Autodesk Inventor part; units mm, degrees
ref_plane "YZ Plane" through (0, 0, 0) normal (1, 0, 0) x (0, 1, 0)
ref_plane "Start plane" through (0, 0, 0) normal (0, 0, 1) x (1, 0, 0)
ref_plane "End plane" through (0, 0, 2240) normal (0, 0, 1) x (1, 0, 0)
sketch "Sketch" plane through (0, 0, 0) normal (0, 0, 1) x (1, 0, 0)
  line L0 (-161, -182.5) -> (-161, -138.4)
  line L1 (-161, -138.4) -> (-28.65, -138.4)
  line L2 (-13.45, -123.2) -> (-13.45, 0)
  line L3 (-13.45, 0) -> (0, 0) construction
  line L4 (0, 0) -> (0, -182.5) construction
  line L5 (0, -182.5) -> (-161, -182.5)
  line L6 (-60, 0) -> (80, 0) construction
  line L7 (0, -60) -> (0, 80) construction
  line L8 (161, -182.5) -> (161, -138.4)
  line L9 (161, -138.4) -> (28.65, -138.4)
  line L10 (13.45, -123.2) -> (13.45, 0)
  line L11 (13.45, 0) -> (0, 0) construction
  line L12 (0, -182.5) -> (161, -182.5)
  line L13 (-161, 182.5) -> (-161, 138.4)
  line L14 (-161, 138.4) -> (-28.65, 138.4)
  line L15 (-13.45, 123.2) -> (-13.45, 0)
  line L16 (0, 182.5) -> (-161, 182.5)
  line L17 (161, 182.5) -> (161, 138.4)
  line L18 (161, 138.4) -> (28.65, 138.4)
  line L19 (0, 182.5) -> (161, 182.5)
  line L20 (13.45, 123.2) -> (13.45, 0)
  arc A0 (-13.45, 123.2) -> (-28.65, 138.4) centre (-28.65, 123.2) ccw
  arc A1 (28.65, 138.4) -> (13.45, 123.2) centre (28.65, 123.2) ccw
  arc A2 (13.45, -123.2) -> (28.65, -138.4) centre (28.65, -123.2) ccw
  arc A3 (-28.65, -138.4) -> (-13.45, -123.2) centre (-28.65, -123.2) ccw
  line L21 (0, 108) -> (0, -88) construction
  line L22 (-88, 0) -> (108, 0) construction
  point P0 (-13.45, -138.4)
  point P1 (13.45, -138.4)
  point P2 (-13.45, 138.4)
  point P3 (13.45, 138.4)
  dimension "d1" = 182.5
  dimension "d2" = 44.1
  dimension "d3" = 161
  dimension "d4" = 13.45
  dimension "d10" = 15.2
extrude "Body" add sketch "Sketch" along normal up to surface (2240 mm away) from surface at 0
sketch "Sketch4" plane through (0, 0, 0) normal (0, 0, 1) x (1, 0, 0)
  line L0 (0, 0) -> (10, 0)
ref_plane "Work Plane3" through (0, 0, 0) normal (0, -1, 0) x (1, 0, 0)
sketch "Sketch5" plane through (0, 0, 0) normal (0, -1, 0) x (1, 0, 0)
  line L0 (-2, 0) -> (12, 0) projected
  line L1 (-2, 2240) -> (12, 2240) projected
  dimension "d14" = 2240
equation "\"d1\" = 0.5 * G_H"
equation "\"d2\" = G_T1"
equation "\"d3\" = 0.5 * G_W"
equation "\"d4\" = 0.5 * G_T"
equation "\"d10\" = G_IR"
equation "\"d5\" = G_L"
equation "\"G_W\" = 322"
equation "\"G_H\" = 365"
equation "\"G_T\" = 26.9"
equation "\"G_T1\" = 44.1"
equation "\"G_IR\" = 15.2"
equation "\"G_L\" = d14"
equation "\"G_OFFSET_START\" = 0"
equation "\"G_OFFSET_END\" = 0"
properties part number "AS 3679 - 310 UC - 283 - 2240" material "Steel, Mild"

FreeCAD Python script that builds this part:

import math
import FreeCAD as App
import Part
import Sketcher
from FreeCAD import Vector

doc = App.newDocument("Part")
params = doc.addObject("Spreadsheet::Sheet", "Params")
for row, (alias, value) in enumerate([
    ("sketch1_radius", "15.2 mm"),
    ("sketch1_height", "44.1 mm"),
    ("pad1_length", "2240 mm"),
], start=1):
    params.set(f"A{row}", alias)
    params.set(f"B{row}", "=" + value)
    params.setAlias(f"B{row}", alias)

body = doc.addObject("PartDesign::Body", "Body")

# Sketch on XY plane
sketch1 = body.newObject("Sketcher::SketchObject", "Sketch")
sketch1.AttachmentSupport = (doc.getObject("XY_Plane"), [""])
sketch1.MapMode = "FlatFace"
sketch1.addGeometry(Part.LineSegment(Vector(-161, -138, 0), Vector(-161, -182, 0)), False)
sketch1.addGeometry(Part.LineSegment(Vector(-161, -182, 0), Vector(161, -182, 0)), False)
sketch1.addGeometry(Part.LineSegment(Vector(161, -182, 0), Vector(161, -138, 0)), False)
sketch1.addGeometry(Part.LineSegment(Vector(161, -138, 0), Vector(29, -138, 0)), False)
sketch1.addGeometry(Part.ArcOfCircle(Part.Circle(Vector(29, -123, 0), Vector(0, 0, 1), 15), math.radians(180), math.radians(270)), False)
sketch1.addGeometry(Part.LineSegment(Vector(13, -123, 0), Vector(13, 123, 0)), False)
sketch1.addGeometry(Part.ArcOfCircle(Part.Circle(Vector(29, 123, 0), Vector(0, 0, 1), 15), math.radians(90), math.radians(180)), False)
sketch1.addGeometry(Part.LineSegment(Vector(29, 138, 0), Vector(161, 138, 0)), False)
sketch1.addGeometry(Part.LineSegment(Vector(161, 138, 0), Vector(161, 182, 0)), False)
sketch1.addGeometry(Part.LineSegment(Vector(161, 182, 0), Vector(-161, 182, 0)), False)
sketch1.addGeometry(Part.LineSegment(Vector(-161, 182, 0), Vector(-161, 138, 0)), False)
sketch1.addGeometry(Part.LineSegment(Vector(-161, 138, 0), Vector(-29, 138, 0)), False)
sketch1.addGeometry(Part.ArcOfCircle(Part.Circle(Vector(-29, 123, 0), Vector(0, 0, 1), 15), math.radians(0), math.radians(90)), False)
sketch1.addGeometry(Part.LineSegment(Vector(-13, 123, 0), Vector(-13, -123, 0)), False)
sketch1.addGeometry(Part.ArcOfCircle(Part.Circle(Vector(-29, -123, 0), Vector(0, 0, 1), 15), math.radians(-90), math.radians(0)), False)
sketch1.addGeometry(Part.LineSegment(Vector(-29, -138, 0), Vector(-161, -138, 0)), False)
sketch1.addConstraint(Sketcher.Constraint("Coincident", 0, 2, 1, 1))
sketch1.addConstraint(Sketcher.Constraint("Coincident", 1, 2, 2, 1))
sketch1.addConstraint(Sketcher.Constraint("Coincident", 2, 2, 3, 1))
sketch1.addConstraint(Sketcher.Constraint("Tangent", 3, 2, 4, 2))
sketch1.addConstraint(Sketcher.Constraint("Tangent", 4, 1, 5, 1))
sketch1.addConstraint(Sketcher.Constraint("Tangent", 5, 2, 6, 2))
sketch1.addConstraint(Sketcher.Constraint("Tangent", 6, 1, 7, 1))
sketch1.addConstraint(Sketcher.Constraint("Coincident", 7, 2, 8, 1))
sketch1.addConstraint(Sketcher.Constraint("Coincident", 8, 2, 9, 1))
sketch1.addConstraint(Sketcher.Constraint("Coincident", 9, 2, 10, 1))
sketch1.addConstraint(Sketcher.Constraint("Coincident", 10, 2, 11, 1))
sketch1.addConstraint(Sketcher.Constraint("Tangent", 11, 2, 12, 2))
sketch1.addConstraint(Sketcher.Constraint("Tangent", 12, 1, 13, 1))
sketch1.addConstraint(Sketcher.Constraint("Tangent", 13, 2, 14, 2))
sketch1.addConstraint(Sketcher.Constraint("Tangent", 14, 1, 15, 1))
sketch1.addConstraint(Sketcher.Constraint("Coincident", 15, 2, 0, 1))
sketch1.addConstraint(Sketcher.Constraint("Vertical", 0))
sketch1.addConstraint(Sketcher.Constraint("Horizontal", 1))
sketch1.addConstraint(Sketcher.Constraint("Vertical", 2))
sketch1.addConstraint(Sketcher.Constraint("Horizontal", 3))
sketch1.addConstraint(Sketcher.Constraint("Vertical", 5))
sketch1.addConstraint(Sketcher.Constraint("Horizontal", 7))
sketch1.addConstraint(Sketcher.Constraint("Vertical", 8))
sketch1.addConstraint(Sketcher.Constraint("Horizontal", 9))
sketch1.addConstraint(Sketcher.Constraint("Vertical", 10))
sketch1.addConstraint(Sketcher.Constraint("Horizontal", 11))
sketch1.addConstraint(Sketcher.Constraint("Vertical", 13))
sketch1.addConstraint(Sketcher.Constraint("Horizontal", 15))
sketch1.addConstraint(Sketcher.Constraint("Equal", 4, 6))
sketch1.addConstraint(Sketcher.Constraint("Equal", 6, 12))
sketch1.addConstraint(Sketcher.Constraint("Equal", 12, 14))
sketch1.addConstraint(Sketcher.Constraint("Symmetric", 4, 3, 12, 3, -1, 1))
sketch1.addConstraint(Sketcher.Constraint("Symmetric", 0, 2, 8, 2, -1, 1))
sketch1.addConstraint(Sketcher.Constraint("Symmetric", 7, 2, 10, 2, -2))
sketch1.addConstraint(Sketcher.Constraint("Symmetric", 2, 2, 15, 2, -2))
sketch1.addConstraint(Sketcher.Constraint("Radius", 4, 15.2))
sketch1.addConstraint(Sketcher.Constraint("DistanceY", 0, 2, 0, 1, 44.1))
sketch1.addConstraint(Sketcher.Constraint("DistanceX", 0, 2, -1, 1, 161.0))
sketch1.addConstraint(Sketcher.Constraint("DistanceY", 0, 2, -1, 1, 182.5))
sketch1.addConstraint(Sketcher.Constraint("DistanceX", -1, 1, 4, 1, 13.45))
sketch1.setExpression("Constraints[35]", "Params.sketch1_radius")
sketch1.setExpression("Constraints[36]", "Params.sketch1_height")
pad1 = body.newObject("PartDesign::Pad", "Pad")
pad1.Profile = sketch1
pad1.setExpression("Length", "Params.pad1_length")

doc.recompute()
